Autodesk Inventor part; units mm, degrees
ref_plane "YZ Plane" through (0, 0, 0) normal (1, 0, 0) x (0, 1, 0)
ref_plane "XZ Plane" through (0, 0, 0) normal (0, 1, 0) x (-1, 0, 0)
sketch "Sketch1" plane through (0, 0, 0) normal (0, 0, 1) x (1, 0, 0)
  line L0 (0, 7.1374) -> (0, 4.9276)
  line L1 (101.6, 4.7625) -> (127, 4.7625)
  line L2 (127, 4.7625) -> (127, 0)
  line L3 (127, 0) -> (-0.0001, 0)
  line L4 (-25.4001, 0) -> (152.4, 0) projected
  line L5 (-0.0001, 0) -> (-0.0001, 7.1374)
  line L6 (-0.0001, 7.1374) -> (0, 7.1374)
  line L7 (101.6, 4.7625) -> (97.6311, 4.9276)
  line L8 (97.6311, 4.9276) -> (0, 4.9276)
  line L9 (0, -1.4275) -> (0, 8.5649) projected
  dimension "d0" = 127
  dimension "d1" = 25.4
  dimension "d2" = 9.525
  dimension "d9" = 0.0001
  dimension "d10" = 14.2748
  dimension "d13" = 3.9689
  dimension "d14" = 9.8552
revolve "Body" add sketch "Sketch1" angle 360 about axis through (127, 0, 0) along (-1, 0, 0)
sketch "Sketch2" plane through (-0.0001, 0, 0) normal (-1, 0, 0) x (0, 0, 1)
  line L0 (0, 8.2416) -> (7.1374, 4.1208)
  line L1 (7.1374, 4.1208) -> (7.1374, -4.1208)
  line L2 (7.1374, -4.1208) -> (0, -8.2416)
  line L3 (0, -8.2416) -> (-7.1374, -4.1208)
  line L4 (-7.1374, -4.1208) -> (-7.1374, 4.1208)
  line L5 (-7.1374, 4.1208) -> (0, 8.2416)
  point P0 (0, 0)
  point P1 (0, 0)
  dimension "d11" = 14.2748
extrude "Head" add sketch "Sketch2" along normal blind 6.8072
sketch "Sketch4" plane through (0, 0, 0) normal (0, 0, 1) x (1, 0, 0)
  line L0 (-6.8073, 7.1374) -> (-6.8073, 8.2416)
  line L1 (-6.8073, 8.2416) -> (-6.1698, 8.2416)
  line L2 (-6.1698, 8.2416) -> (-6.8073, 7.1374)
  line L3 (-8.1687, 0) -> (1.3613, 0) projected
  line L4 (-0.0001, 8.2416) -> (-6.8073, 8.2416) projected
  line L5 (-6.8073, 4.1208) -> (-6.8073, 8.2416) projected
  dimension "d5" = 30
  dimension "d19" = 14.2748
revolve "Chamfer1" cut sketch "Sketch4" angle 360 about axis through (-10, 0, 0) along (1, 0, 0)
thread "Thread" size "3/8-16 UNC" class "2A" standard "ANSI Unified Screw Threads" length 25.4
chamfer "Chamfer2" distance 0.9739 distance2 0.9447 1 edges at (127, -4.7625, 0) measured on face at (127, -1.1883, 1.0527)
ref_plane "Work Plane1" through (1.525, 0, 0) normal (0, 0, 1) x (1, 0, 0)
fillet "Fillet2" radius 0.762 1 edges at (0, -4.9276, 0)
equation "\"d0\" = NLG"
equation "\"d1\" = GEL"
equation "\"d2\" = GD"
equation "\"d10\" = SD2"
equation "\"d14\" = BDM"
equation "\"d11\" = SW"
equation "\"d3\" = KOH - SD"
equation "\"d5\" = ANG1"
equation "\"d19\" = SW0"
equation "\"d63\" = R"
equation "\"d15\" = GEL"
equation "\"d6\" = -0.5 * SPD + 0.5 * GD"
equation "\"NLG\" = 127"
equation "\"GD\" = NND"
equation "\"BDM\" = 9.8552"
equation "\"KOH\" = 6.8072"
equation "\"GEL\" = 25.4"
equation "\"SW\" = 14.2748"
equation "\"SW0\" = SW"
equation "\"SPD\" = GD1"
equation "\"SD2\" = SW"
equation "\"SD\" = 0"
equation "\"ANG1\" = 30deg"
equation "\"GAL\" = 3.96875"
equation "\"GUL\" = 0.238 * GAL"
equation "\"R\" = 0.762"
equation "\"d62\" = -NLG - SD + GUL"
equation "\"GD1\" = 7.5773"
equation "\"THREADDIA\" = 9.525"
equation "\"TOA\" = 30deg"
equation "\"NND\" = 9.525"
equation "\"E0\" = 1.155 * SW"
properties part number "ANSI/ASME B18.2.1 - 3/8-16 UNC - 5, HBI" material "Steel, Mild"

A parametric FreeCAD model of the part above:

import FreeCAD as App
import Part
import Sketcher
Q = App.Units.Quantity


def edges_at(feature, points):
    """Names of the edges that pass closest to the given points."""
    edges = feature.Shape.Edges
    near = lambda p: min(range(len(edges)), key=lambda i: edges[i].distToShape(Part.Vertex(*p))[0])
    return sorted({f"Edge{near(p) + 1}" for p in points})


def add_polygon(sketch, points):
    """Adds a closed chain of lines whose ends are joined by coincident constraints."""
    first, n = sketch.GeometryCount, len(points)
    for a, b in zip(points, points[1:] + points[:1]):
        sketch.addGeometry(Part.LineSegment(App.Vector(*a, 0), App.Vector(*b, 0)), False)
    for i in range(n):
        sketch.addConstraint(Sketcher.Constraint("Coincident", first + i, 2, first + (i + 1) % n, 1))

doc = App.newDocument("Part")
params = doc.addObject("Spreadsheet::Sheet", "Params")
for row, (alias, value) in enumerate([
    ("sketch1_width", "1 in"),
    ("sketch1_width2", "5 in"),
    ("sketch1_height", "0.194 in"),
    ("sketch1_height2", "0.1875 in"),
    ("revolution_angle", "360 deg"),
    ("pad1_length", "0.268 in"),
    ("groove_angle", "360 deg"),
    ("chamfer_size", "0.9739 mm"),
    ("chamfer_size2", "0.0371929 in"),
    ("fillet_radius", "0.03 in"),
], start=1):
    params.set(f"A{row}", alias)
    params.set(f"B{row}", "=" + value)
    params.setAlias(f"B{row}", alias)

body = doc.addObject("PartDesign::Body", "Body")

# Sketch on XY plane
sketch1 = body.newObject("Sketcher::SketchObject", "Sketch")
sketch1.AttachmentSupport = (doc.getObject("XY_Plane"), [""])
sketch1.MapMode = "FlatFace"
add_polygon(sketch1, [(127, 4.7625), (101.6, 4.7625), (97.6311, 4.9276), (-0.000031, 4.9276), (-0.0001, 0), (127, 0)])  # lines 0-5
sketch1.addConstraint([
    Sketcher.Constraint("Horizontal", 0),
    Sketcher.Constraint("Horizontal", 2),
    Sketcher.Constraint("Vertical", 3),
    Sketcher.Constraint("Horizontal", 4),
    Sketcher.Constraint("Vertical", 5),
    Sketcher.Constraint("Coincident", 3, 2, -1, 1),
    Sketcher.Constraint("DistanceX", 0, 2, 0, 1, Q("1 in")),
    Sketcher.Constraint("DistanceX", 4, 1, 4, 2, Q("5 in")),
    Sketcher.Constraint("DistanceX", 1, 2, 0, 2, 3.969),
    Sketcher.Constraint("DistanceY", 3, 2, 3, 1, Q("0.194 in")),
    Sketcher.Constraint("DistanceY", 5, 1, 5, 2, Q("0.1875 in")),
])
sketch1.setExpression("Constraints[12]", "Params.sketch1_width")
sketch1.setExpression("Constraints[13]", "Params.sketch1_width2")
sketch1.setExpression("Constraints[15]", "Params.sketch1_height")
sketch1.setExpression("Constraints[16]", "Params.sketch1_height2")
revolution = body.newObject("PartDesign::Revolution", "Revolution")
revolution.Profile = sketch1
revolution.ReferenceAxis = (sketch1, ["H_Axis"])
revolution.setExpression("Angle", "Params.revolution_angle")

# Sketch on YZ plane
sketch2 = body.newObject("Sketcher::SketchObject", "Sketch001")
sketch2.AttachmentSupport = (doc.getObject("YZ_Plane"), [""])
sketch2.MapMode = "FlatFace"
sketch2.AttachmentOffset = App.Placement(App.Vector(0, 0, -0.0000039 * 25.4), App.Rotation())
add_polygon(sketch2, [(4.1208, 7.1374), (8.2416, 0), (4.1208, -7.1374), (-4.1208, -7.1374), (-8.2416, 0), (-4.1208, 7.1374)])  # lines 0-5
sketch2.addConstraint([
    Sketcher.Constraint("Horizontal", 2),
    Sketcher.Constraint("Horizontal", 5),
    Sketcher.Constraint("Symmetric", 0, 2, 3, 2, -1, 1),
    Sketcher.Constraint("Symmetric", 1, 2, 4, 2, -1, 1),
    Sketcher.Constraint("PointOnObject", 0, 2, -1),
    Sketcher.Constraint("Parallel", 0, 3),
    Sketcher.Constraint("Vertical", 2, 2, 4, 2),
    Sketcher.Constraint("Angle", 0, Q("-59.9999 deg")),
    Sketcher.Constraint("DistanceY", 2, 2, 4, 2, Q("0.562 in")),
    Sketcher.Constraint("DistanceX", 2, 2, 2, 1, 8.2416),
])
pad1 = body.newObject("PartDesign::Pad", "Pad")
pad1.Profile = sketch2
pad1.setExpression("Length", "Params.pad1_length")
pad1.Reversed = True

# Sketch on XY plane
sketch3 = body.newObject("Sketcher::SketchObject", "Sketch002")
sketch3.AttachmentSupport = (doc.getObject("XY_Plane"), [""])
sketch3.MapMode = "FlatFace"
add_polygon(sketch3, [(-6.8073, 8.2416), (-6.8073, 7.1374), (-6.1698, 8.2416)])  # lines 0-2
sketch3.addConstraint([
    Sketcher.Constraint("Vertical", 0),
    Sketcher.Constraint("Horizontal", 2),
    Sketcher.Constraint("Angle", 1, Q("60.0004 deg")),
    Sketcher.Constraint("DistanceX", 2, 2, 2, 1, Q("0.0251 in")),
    Sketcher.Constraint("DistanceX", 0, 2, -1, 1, Q("0.268 in")),
    Sketcher.Constraint("DistanceY", -1, 1, 0, 2, Q("0.281 in")),
])
groove = body.newObject("PartDesign::Groove", "Groove")
groove.Profile = sketch3
groove.ReferenceAxis = (sketch3, ["H_Axis"])
groove.setExpression("Angle", "Params.groove_angle")
doc.recompute()

chamfer = body.newObject("PartDesign::Chamfer", "Chamfer")
chamfer.Base = (groove, edges_at(groove, [(127, -4.763, 0)]))
chamfer.ChamferType = "Two distances"
chamfer.setExpression("Size", "Params.chamfer_size")
chamfer.setExpression("Size2", "Params.chamfer_size2")
doc.recompute()

fillet = body.newObject("PartDesign::Fillet", "Fillet")
fillet.Base = (chamfer, edges_at(chamfer, [(0, -4.928, 0)]))
fillet.setExpression("Radius", "Params.fillet_radius")

doc.recompute()
